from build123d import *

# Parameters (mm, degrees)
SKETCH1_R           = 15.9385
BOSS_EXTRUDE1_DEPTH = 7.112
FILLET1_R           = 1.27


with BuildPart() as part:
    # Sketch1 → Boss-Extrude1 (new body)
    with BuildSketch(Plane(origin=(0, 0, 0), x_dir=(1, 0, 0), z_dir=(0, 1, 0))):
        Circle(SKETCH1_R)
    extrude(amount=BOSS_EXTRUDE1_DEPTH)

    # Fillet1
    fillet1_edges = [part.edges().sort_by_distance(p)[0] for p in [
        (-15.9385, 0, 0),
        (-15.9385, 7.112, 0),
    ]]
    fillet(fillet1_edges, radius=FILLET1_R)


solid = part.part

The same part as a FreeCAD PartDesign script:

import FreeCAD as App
import Part
import Sketcher
from FreeCAD import Vector
Q = App.Units.Quantity


def edges_at(feature, points):
    """Names of the edges that pass closest to the given points."""
    edges = feature.Shape.Edges
    near = lambda p: min(range(len(edges)), key=lambda i: edges[i].distToShape(Part.Vertex(*p))[0])
    return sorted({f"Edge{near(p) + 1}" for p in points})

doc = App.newDocument("Part")
params = doc.addObject("Spreadsheet::Sheet", "Params")
for row, (alias, value) in enumerate([
    ("sketch1_diameter", "1.255 in"),
    ("pad1_length", "0.28 in"),
    ("fillet_radius", "0.05 in"),
], start=1):
    params.set(f"A{row}", alias)
    params.set(f"B{row}", "=" + value)
    params.setAlias(f"B{row}", alias)

body = doc.addObject("PartDesign::Body", "Body")

sketch1 = body.newObject("Sketcher::SketchObject", "Sketch")
sketch1.AttachmentSupport = (doc.getObject("XZ_Plane"), [""])
sketch1.MapMode = "FlatFace"
sketch1.addGeometry(Part.Circle(Vector(0, 0, 0), Vector(0, 0, 1), 15.9385), False)
sketch1.addConstraint(Sketcher.Constraint("Coincident", 0, 3, -1, 1))
sketch1.addConstraint(Sketcher.Constraint("Diameter", 0, Q("1.255 in")))
sketch1.setExpression("Constraints[1]", "Params.sketch1_diameter")
pad1 = body.newObject("PartDesign::Pad", "Pad")
pad1.Profile = sketch1
pad1.setExpression("Length", "Params.pad1_length")
pad1.Reversed = True
doc.recompute()

fillet = body.newObject("PartDesign::Fillet", "Fillet")
fillet.Base = (pad1, edges_at(pad1, [(-15.938, 0, 0), (-15.938, 7.112, 0)]))
fillet.setExpression("Radius", "Params.fillet_radius")

doc.recompute()
